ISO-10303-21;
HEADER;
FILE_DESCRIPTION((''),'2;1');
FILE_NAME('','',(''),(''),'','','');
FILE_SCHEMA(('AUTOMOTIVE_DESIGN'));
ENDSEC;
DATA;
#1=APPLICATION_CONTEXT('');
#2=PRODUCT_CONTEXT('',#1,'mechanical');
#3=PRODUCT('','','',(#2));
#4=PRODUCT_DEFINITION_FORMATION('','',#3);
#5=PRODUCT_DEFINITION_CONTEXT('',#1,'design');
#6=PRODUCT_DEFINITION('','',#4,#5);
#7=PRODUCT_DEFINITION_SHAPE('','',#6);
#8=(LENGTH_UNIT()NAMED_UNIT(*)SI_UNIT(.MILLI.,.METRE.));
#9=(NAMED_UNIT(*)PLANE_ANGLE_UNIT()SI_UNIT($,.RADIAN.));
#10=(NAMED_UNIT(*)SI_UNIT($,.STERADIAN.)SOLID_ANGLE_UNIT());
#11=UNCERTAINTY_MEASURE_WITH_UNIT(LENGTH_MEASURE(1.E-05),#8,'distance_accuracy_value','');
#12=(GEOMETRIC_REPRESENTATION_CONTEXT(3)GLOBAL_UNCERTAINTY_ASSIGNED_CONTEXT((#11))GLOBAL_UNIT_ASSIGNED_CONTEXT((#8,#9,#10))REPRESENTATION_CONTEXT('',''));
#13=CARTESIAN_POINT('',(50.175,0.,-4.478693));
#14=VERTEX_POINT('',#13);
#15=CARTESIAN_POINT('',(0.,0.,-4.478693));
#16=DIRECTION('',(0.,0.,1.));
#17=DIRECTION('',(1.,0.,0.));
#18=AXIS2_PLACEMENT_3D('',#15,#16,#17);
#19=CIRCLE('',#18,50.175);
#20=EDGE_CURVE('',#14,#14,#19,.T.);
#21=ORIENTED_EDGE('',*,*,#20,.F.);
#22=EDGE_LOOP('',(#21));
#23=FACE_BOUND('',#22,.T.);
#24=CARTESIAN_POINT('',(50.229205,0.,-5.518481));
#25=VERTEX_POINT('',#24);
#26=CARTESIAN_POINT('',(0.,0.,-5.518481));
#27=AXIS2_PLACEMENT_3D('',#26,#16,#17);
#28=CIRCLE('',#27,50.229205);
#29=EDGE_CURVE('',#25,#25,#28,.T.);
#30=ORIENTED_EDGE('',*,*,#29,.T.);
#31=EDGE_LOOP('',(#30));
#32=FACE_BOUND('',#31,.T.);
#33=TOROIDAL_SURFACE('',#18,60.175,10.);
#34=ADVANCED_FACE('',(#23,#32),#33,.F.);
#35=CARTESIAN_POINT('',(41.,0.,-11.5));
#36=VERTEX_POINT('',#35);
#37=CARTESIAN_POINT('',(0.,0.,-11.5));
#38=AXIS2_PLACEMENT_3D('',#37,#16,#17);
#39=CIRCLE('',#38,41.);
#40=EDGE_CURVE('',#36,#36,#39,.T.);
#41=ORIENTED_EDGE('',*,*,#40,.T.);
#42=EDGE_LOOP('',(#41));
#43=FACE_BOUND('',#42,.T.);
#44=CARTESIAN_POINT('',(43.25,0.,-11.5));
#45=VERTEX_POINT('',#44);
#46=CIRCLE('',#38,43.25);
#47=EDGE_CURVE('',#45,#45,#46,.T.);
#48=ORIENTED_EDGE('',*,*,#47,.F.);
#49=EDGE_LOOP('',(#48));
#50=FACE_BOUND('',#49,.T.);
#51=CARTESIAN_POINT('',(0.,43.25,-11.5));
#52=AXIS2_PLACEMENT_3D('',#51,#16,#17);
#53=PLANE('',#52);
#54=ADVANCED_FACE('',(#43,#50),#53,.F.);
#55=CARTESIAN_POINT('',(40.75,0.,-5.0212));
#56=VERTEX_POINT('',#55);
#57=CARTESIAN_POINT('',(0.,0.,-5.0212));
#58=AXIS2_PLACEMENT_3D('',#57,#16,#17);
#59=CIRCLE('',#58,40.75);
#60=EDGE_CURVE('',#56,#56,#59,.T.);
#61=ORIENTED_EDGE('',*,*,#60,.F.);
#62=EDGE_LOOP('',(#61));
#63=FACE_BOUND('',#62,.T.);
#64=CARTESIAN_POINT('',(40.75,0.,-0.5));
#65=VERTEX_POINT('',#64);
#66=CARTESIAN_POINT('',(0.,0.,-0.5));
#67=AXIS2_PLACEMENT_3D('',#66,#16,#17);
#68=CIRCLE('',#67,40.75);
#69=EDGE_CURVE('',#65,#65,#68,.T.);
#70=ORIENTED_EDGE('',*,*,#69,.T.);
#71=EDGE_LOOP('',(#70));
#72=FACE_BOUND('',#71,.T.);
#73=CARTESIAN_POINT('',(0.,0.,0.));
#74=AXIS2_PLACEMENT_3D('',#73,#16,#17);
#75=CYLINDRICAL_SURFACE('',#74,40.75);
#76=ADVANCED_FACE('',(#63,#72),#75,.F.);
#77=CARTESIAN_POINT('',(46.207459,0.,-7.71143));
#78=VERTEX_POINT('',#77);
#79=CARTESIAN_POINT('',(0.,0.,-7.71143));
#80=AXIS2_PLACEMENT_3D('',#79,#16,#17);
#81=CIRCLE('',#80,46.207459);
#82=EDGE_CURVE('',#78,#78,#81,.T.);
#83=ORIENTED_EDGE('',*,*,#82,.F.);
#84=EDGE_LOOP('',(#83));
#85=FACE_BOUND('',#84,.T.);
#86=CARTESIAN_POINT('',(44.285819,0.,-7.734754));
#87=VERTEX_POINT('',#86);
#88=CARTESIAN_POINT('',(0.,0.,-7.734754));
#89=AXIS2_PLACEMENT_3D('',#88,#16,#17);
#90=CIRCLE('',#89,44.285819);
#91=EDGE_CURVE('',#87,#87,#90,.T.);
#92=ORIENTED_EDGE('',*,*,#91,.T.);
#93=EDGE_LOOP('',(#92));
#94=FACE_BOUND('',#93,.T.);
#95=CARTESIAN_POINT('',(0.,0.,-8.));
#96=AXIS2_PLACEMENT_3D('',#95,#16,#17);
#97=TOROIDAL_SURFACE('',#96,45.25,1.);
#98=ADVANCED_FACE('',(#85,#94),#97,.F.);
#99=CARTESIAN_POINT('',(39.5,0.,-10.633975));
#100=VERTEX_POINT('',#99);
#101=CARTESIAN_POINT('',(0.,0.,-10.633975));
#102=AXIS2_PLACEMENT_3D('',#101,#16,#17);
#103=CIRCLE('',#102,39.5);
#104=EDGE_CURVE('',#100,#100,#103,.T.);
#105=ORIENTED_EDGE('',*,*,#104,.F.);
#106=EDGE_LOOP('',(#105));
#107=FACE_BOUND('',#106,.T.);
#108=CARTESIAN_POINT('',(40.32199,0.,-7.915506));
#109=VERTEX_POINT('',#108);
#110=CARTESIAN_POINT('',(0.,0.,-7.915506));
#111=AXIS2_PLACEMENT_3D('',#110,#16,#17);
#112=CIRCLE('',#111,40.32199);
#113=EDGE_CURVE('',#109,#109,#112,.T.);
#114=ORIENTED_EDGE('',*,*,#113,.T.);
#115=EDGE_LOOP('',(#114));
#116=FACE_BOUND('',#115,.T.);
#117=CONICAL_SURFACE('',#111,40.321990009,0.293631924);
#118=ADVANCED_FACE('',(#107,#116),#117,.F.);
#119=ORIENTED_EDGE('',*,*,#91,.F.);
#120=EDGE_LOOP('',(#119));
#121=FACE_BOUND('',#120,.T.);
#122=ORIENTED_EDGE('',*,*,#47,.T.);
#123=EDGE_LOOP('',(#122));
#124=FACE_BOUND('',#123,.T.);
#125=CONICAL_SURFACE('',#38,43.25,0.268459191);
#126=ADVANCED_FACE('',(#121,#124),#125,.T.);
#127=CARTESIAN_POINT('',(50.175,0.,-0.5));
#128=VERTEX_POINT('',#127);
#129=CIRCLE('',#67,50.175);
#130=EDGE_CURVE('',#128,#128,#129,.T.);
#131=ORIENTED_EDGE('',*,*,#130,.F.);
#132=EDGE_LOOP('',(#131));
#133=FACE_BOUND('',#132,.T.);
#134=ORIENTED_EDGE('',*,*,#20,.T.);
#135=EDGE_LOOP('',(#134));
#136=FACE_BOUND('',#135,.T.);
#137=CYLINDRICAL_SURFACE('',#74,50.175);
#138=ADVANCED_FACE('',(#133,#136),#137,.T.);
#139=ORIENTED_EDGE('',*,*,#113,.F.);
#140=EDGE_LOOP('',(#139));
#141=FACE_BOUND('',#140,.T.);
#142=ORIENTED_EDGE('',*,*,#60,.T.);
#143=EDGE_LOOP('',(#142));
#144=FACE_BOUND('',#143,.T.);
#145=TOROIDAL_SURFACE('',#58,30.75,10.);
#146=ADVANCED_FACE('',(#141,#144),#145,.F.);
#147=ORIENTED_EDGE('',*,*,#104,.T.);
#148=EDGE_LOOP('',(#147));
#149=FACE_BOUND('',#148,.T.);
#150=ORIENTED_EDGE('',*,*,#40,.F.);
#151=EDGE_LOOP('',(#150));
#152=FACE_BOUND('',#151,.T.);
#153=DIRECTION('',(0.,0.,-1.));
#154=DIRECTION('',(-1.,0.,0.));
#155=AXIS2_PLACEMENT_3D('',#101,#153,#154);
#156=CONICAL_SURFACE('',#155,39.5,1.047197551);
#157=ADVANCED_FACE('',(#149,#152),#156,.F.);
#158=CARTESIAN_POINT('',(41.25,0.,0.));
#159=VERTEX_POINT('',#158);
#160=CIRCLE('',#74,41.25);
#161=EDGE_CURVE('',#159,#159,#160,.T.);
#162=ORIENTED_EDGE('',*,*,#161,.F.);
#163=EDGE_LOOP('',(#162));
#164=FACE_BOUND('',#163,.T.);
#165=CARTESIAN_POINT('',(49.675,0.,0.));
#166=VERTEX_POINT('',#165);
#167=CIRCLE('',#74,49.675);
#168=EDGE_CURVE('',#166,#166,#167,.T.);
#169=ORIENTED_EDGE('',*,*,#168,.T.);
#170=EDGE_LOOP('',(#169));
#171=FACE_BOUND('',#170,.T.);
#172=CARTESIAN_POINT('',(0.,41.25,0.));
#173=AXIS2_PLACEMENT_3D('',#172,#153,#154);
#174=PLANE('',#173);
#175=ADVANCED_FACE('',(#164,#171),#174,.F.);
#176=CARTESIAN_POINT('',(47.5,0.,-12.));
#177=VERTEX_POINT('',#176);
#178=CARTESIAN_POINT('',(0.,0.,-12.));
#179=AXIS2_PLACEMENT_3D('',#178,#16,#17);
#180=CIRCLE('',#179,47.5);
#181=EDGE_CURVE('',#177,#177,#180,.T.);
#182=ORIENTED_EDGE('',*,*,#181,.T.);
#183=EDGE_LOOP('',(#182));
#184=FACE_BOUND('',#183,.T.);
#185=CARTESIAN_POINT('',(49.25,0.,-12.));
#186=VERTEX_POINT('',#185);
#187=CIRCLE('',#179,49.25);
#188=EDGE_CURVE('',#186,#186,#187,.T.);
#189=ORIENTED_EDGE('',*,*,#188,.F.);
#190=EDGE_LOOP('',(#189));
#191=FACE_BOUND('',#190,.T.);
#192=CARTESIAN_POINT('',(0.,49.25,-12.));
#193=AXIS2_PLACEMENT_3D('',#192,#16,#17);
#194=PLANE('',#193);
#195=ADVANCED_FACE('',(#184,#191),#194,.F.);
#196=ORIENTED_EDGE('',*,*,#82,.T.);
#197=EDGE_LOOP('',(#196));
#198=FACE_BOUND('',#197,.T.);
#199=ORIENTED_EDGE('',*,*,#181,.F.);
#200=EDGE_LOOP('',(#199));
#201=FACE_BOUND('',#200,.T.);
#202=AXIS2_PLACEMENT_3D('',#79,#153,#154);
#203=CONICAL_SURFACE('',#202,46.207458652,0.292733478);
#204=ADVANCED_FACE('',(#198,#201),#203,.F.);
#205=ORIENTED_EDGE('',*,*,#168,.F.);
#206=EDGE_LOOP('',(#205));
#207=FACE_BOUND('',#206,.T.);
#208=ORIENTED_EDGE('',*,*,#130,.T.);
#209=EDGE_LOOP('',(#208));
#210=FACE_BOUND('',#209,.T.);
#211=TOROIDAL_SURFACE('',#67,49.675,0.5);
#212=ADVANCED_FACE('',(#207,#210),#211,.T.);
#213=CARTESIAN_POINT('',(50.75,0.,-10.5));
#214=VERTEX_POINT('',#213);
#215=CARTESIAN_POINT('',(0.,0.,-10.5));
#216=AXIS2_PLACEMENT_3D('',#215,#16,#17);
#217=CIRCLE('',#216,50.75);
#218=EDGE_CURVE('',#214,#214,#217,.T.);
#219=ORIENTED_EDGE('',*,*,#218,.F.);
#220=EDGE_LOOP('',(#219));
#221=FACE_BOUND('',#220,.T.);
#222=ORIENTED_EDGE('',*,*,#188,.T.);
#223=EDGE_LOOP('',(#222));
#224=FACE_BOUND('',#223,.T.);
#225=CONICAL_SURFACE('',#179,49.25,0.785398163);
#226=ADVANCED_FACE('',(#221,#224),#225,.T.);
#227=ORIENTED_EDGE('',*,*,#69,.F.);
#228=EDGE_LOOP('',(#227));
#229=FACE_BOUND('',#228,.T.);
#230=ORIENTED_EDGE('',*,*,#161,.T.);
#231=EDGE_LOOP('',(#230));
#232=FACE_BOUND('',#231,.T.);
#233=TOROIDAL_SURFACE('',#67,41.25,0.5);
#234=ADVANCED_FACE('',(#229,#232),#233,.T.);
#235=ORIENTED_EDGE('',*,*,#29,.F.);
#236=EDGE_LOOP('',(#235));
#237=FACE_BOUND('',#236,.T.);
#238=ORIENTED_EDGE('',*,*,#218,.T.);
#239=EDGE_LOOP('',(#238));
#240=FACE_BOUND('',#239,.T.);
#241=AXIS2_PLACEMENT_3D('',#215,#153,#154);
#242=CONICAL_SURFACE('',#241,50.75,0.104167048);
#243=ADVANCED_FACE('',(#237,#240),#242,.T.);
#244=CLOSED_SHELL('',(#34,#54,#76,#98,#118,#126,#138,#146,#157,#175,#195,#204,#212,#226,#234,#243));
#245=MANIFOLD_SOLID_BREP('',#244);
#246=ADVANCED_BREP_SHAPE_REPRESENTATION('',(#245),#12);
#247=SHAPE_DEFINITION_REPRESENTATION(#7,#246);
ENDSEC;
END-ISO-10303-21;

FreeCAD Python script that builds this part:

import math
import FreeCAD as App
import Part
import Sketcher
Q = App.Units.Quantity

doc = App.newDocument("Part")
body = doc.addObject("PartDesign::Body", "Body")

# Sketch on YZ plane
sketch1 = doc.addObject("Sketcher::SketchObject", "Sketch")
body.addObject(sketch1)
sketch1.AttachmentSupport = (doc.YZ_Plane, [""])
sketch1.MapMode = "FlatFace"
sketch1.addGeometry([
    Part.LineSegment(App.Vector(49.67, 0, 0), App.Vector(41.25, 0, 0)),  # 0
    Part.ArcOfCircle(Part.Circle(App.Vector(41.25, -0.5, 0), App.Vector(0, 0, 1), 0.5), math.radians(90), math.radians(180)),  # 1
    Part.LineSegment(App.Vector(40.75, -0.5, 0), App.Vector(40.75, -5.02, 0)),  # 2
    Part.ArcOfCircle(Part.Circle(App.Vector(30.75, -5.02, 0), App.Vector(0, 0, 1), 10), math.radians(-16.82), math.radians(0)),  # 3
    Part.LineSegment(App.Vector(40.32, -7.92, 0), App.Vector(39.5, -10.63, 0)),  # 4
    Part.LineSegment(App.Vector(39.5, -10.63, 0), App.Vector(41, -11.5, 0)),  # 5
    Part.LineSegment(App.Vector(41, -11.5, 0), App.Vector(43.25, -11.5, 0)),  # 6
    Part.LineSegment(App.Vector(43.25, -11.5, 0), App.Vector(44.29, -7.73, 0)),  # 7
    Part.ArcOfCircle(Part.Circle(App.Vector(45.25, -8, 0), App.Vector(0, 0, 1), 1), math.radians(17), math.radians(165)),  # 8
    Part.LineSegment(App.Vector(46.21, -7.71, 0), App.Vector(47.5, -12, 0)),  # 9
    Part.LineSegment(App.Vector(47.5, -12, 0), App.Vector(49.25, -12, 0)),  # 10
    Part.LineSegment(App.Vector(49.25, -12, 0), App.Vector(50.75, -10.5, 0)),  # 11
    Part.LineSegment(App.Vector(50.75, -10.5, 0), App.Vector(50.23, -5.52, 0)),  # 12
    Part.ArcOfCircle(Part.Circle(App.Vector(60.17, -4.48, 0), App.Vector(0, 0, 1), 10), math.radians(180), math.radians(185.97)),  # 13
    Part.LineSegment(App.Vector(50.17, -4.48, 0), App.Vector(50.17, -0.5, 0)),  # 14
    Part.ArcOfCircle(Part.Circle(App.Vector(49.68, -0.5, 0), App.Vector(0, 0, 1), 0.5), math.radians(0), math.radians(90)),  # 15
], False)
sketch1.addConstraint([
    Sketcher.Constraint("Tangent", 0, 2, 1, 1),
    Sketcher.Constraint("Tangent", 1, 2, 2, 1),
    Sketcher.Constraint("Tangent", 2, 2, 3, 2),
    Sketcher.Constraint("Tangent", 3, 1, 4, 1),
    Sketcher.Constraint("Coincident", 4, 2, 5, 1),
    Sketcher.Constraint("Coincident", 5, 2, 6, 1),
    Sketcher.Constraint("Coincident", 6, 2, 7, 1),
    Sketcher.Constraint("Tangent", 7, 2, 8, 2),
    Sketcher.Constraint("Tangent", 8, 1, 9, 1),
    Sketcher.Constraint("Coincident", 9, 2, 10, 1),
    Sketcher.Constraint("Coincident", 10, 2, 11, 1),
    Sketcher.Constraint("Coincident", 11, 2, 12, 1),
    Sketcher.Constraint("Tangent", 12, 2, 13, 2),
    Sketcher.Constraint("Tangent", 13, 1, 14, 1),
    Sketcher.Constraint("Tangent", 14, 2, 15, 1),
    Sketcher.Constraint("Tangent", 15, 2, 0, 1),
    Sketcher.Constraint("Horizontal", 0),
    Sketcher.Constraint("Vertical", 2),
    Sketcher.Constraint("Horizontal", 6),
    Sketcher.Constraint("Horizontal", 10),
    Sketcher.Constraint("Vertical", 14),
    Sketcher.Constraint("Equal", 3, 13),
    Sketcher.Constraint("Equal", 1, 15),
    Sketcher.Constraint("PointOnObject", 0, 2, -1),
    Sketcher.Constraint("Radius", 3, Q("10 mm")),
    Sketcher.Constraint("Radius", 8, Q("1 mm")),
    Sketcher.Constraint("Radius", 1, Q("0.5 mm")),
    Sketcher.Constraint("Angle", 5, Q("-30 deg")),
    Sketcher.Constraint("Angle", 11, Q("45 deg")),
    Sketcher.Constraint("DistanceY", 8, 3, -1, 1, Q("8 mm")),
    Sketcher.Constraint("DistanceX", -1, 1, 5, 2, Q("41 mm")),
    Sketcher.Constraint("DistanceY", 9, 2, -1, 1, Q("12 mm")),
    Sketcher.Constraint("DistanceX", 1, 3, 8, 3, Q("4 mm")),
    Sketcher.Constraint("DistanceY", 5, 2, 1, 2, Q("11 mm")),
    Sketcher.Constraint("DistanceX", 6, 2, 8, 3, Q("2 mm")),
    Sketcher.Constraint("DistanceX", 8, 3, 10, 2, Q("4 mm")),
    Sketcher.Constraint("DistanceX", 6, 1, 6, 2, Q("2.25 mm")),
    Sketcher.Constraint("DistanceX", 10, 1, 10, 2, Q("1.75 mm")),
    Sketcher.Constraint("DistanceX", -1, 1, 4, 2, Q("39.5 mm")),
    Sketcher.Constraint("DistanceY", 11, 2, -1, 1, Q("10.5 mm")),
    Sketcher.Constraint("DistanceX", 0, 2, 0, 1, Q("8.425 mm")),
    Sketcher.Constraint("DistanceY", 2, 2, 2, 1, Q("4.5212 mm")),
    Sketcher.Constraint("Distance", 12, Q("5.008668 mm")),
])
revolution = doc.addObject("PartDesign::Revolution", "Revolution")
body.addObject(revolution)
revolution.Profile = sketch1
revolution.ReferenceAxis = (sketch1, ["V_Axis"])
revolution.Angle = 360

doc.recompute()
